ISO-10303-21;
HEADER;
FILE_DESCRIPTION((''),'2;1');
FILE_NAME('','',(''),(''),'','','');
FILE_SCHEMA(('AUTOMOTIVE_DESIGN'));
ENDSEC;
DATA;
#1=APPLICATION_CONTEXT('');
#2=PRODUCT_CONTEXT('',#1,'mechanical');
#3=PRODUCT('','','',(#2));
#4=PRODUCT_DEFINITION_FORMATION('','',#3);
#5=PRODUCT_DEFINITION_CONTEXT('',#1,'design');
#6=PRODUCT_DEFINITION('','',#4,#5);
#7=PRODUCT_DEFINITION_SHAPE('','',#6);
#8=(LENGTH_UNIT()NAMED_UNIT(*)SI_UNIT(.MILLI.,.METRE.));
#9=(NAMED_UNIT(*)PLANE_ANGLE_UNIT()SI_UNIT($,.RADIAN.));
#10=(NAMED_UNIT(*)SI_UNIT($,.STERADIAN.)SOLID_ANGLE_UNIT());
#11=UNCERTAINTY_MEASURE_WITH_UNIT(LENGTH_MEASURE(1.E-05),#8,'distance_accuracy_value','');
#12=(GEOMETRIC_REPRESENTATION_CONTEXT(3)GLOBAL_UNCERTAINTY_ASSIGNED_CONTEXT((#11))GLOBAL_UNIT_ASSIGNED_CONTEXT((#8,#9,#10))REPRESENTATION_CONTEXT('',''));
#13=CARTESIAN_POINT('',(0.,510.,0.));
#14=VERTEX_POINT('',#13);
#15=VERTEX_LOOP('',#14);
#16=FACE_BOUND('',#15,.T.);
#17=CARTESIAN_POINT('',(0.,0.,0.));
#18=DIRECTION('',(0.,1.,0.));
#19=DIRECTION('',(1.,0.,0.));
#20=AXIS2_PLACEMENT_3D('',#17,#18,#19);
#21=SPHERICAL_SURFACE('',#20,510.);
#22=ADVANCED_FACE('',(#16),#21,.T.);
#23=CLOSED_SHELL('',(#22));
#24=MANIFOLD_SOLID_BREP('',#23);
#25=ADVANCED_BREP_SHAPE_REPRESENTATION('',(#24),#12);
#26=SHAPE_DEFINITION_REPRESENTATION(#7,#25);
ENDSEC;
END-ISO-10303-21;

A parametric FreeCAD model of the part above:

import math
import FreeCAD as App
import Part
import Sketcher

doc = App.newDocument("Part")
params = doc.addObject("Spreadsheet::Sheet", "Params")
for row, (alias, value) in enumerate([
    ("sketch1_radius", "510 mm"),
    ("revolution_angle", "360 deg"),
], start=1):
    params.set(f"A{row}", alias)
    params.set(f"B{row}", "=" + value)
    params.setAlias(f"B{row}", alias)

body = doc.addObject("PartDesign::Body", "Body")

sketch1 = body.newObject("Sketcher::SketchObject", "Sketch")
sketch1.AttachmentSupport = (doc.getObject("XY_Plane"), [""])
sketch1.MapMode = "FlatFace"
sketch1.addGeometry(Part.LineSegment(App.Vector(0, 510, 0), App.Vector(0, -510, 0)), False)
sketch1.addGeometry(Part.ArcOfCircle(Part.Circle(App.Vector(0, 0, 0), App.Vector(0, 0, 1), 510), math.radians(-90), math.radians(90)), False)
sketch1.addConstraint(Sketcher.Constraint("Coincident", 0, 1, 1, 2))
sketch1.addConstraint(Sketcher.Constraint("Coincident", 1, 1, 0, 2))
sketch1.addConstraint(Sketcher.Constraint("Vertical", 0))
sketch1.addConstraint(Sketcher.Constraint("Coincident", 1, 3, -1, 1))
sketch1.addConstraint(Sketcher.Constraint("PointOnObject", 0, 1, -2))
sketch1.addConstraint(Sketcher.Constraint("Radius", 1, 510.0))
sketch1.setExpression("Constraints[5]", "Params.sketch1_radius")
revolution = body.newObject("PartDesign::Revolution", "Revolution")
revolution.Profile = sketch1
revolution.ReferenceAxis = (sketch1, ["V_Axis"])
revolution.setExpression("Angle", "Params.revolution_angle")

doc.recompute()
